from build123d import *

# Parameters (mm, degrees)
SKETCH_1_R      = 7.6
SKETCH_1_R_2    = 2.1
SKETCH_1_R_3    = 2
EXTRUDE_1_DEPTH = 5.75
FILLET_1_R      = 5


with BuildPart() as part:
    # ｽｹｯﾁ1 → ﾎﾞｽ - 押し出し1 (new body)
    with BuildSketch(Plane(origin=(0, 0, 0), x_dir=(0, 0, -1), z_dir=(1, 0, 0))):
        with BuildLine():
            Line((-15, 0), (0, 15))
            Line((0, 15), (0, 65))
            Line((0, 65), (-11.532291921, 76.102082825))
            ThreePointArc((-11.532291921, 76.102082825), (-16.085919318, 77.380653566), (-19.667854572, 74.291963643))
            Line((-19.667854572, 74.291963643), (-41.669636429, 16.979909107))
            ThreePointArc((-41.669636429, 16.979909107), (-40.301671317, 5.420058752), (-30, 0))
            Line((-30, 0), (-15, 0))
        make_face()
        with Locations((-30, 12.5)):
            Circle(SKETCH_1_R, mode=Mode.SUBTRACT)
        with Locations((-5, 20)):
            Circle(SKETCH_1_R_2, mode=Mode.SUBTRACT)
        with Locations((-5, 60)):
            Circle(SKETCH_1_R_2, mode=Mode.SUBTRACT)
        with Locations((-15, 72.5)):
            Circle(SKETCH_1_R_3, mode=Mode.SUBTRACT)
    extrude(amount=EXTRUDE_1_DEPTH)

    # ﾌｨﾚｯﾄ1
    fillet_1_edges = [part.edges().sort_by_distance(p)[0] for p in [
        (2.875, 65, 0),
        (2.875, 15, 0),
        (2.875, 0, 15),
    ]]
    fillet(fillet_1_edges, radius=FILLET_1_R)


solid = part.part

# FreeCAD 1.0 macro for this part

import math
import FreeCAD as App
import Part
import Sketcher
from FreeCAD import Vector
Q = App.Units.Quantity


def edges_at(feature, points):
    """Names of the edges that pass closest to the given points."""
    edges = feature.Shape.Edges
    near = lambda p: min(range(len(edges)), key=lambda i: edges[i].distToShape(Part.Vertex(*p))[0])
    return sorted({f"Edge{near(p) + 1}" for p in points})

doc = App.newDocument("Part")
body = doc.addObject("PartDesign::Body", "Body")

sketch1 = body.newObject("Sketcher::SketchObject", "Sketch")
sketch1.AttachmentSupport = (doc.getObject("YZ_Plane"), [""])
sketch1.MapMode = "FlatFace"
sketch1.addGeometry(Part.LineSegment(Vector(0, 15, 0), Vector(15, 0, 0)), False)
sketch1.addGeometry(Part.LineSegment(Vector(15, 0, 0), Vector(65, 0, 0)), False)
sketch1.addGeometry(Part.LineSegment(Vector(65, 0, 0), Vector(76.102083, 11.532292, 0)), False)
sketch1.addGeometry(Part.ArcOfCircle(Part.Circle(Vector(72.5, 15, 0), Vector(0, 0, 1), 5), math.radians(-43.911116), math.radians(68.998479)), False)
sketch1.addGeometry(Part.LineSegment(Vector(74.291964, 19.667855, 0), Vector(16.979909, 41.669636, 0)), False)
sketch1.addGeometry(Part.ArcOfCircle(Part.Circle(Vector(12.5, 30, 0), Vector(0, 0, 1), 12.5), math.radians(68.998479), math.radians(180)), False)
sketch1.addGeometry(Part.LineSegment(Vector(0, 30, 0), Vector(0, 15, 0)), False)
sketch1.addGeometry(Part.Circle(Vector(12.5, 30, 0), Vector(0, 0, 1), 7.6), False)
sketch1.addGeometry(Part.Circle(Vector(20, 5, 0), Vector(0, 0, 1), 2.1), False)
sketch1.addGeometry(Part.Circle(Vector(72.5, 15, 0), Vector(0, 0, 1), 2), False)
sketch1.addGeometry(Part.Circle(Vector(60, 5, 0), Vector(0, 0, 1), 2.1), False)
sketch1.addConstraint(Sketcher.Constraint("Coincident", 0, 2, 1, 1))
sketch1.addConstraint(Sketcher.Constraint("Coincident", 1, 2, 2, 1))
sketch1.addConstraint(Sketcher.Constraint("Tangent", 2, 2, 3, 1))
sketch1.addConstraint(Sketcher.Constraint("Tangent", 3, 2, 4, 1))
sketch1.addConstraint(Sketcher.Constraint("Tangent", 4, 2, 5, 1))
sketch1.addConstraint(Sketcher.Constraint("Tangent", 5, 2, 6, 1))
sketch1.addConstraint(Sketcher.Constraint("Coincident", 6, 2, 0, 1))
sketch1.addConstraint(Sketcher.Constraint("Horizontal", 1))
sketch1.addConstraint(Sketcher.Constraint("Vertical", 6))
sketch1.addConstraint(Sketcher.Constraint("Coincident", 7, 3, 5, 3))
sketch1.addConstraint(Sketcher.Constraint("Coincident", 9, 3, 3, 3))
sketch1.addConstraint(Sketcher.Constraint("Equal", 8, 10))
sketch1.addConstraint(Sketcher.Constraint("PointOnObject", 0, 2, -1))
sketch1.addConstraint(Sketcher.Constraint("PointOnObject", 5, 2, -2))
sketch1.addConstraint(Sketcher.Constraint("Horizontal", 8, 3, 10, 3))
sketch1.addConstraint(Sketcher.Constraint("Horizontal", 9, 3, 6, 2))
sketch1.addConstraint(Sketcher.Constraint("Diameter", 9, Q("4 mm")))
sketch1.addConstraint(Sketcher.Constraint("Radius", 3, Q("5 mm")))
sketch1.addConstraint(Sketcher.Constraint("Diameter", 7, Q("15.2 mm")))
sketch1.addConstraint(Sketcher.Constraint("Diameter", 8, Q("4.2 mm")))
sketch1.addConstraint(Sketcher.Constraint("Radius", 5, Q("12.5 mm")))
sketch1.addConstraint(Sketcher.Constraint("DistanceX", 1, 1, 1, 2, Q("50 mm")))
sketch1.addConstraint(Sketcher.Constraint("DistanceY", 6, 2, 6, 1, Q("15 mm")))
sketch1.addConstraint(Sketcher.Constraint("Angle", 0, Q("-45 deg")))
sketch1.addConstraint(Sketcher.Constraint("DistanceY", -1, 1, 3, 3, Q("15 mm")))
sketch1.addConstraint(Sketcher.Constraint("DistanceX", -1, 1, 8, 3, Q("20 mm")))
sketch1.addConstraint(Sketcher.Constraint("DistanceY", -1, 1, 8, 3, Q("5 mm")))
sketch1.addConstraint(Sketcher.Constraint("DistanceX", -1, 1, 10, 3, Q("60 mm")))
sketch1.addConstraint(Sketcher.Constraint("DistanceX", 5, 3, 3, 3, Q("60 mm")))
pad1 = body.newObject("PartDesign::Pad", "Pad")
pad1.Profile = sketch1
pad1.Length = 5.75
doc.recompute()

fillet = body.newObject("PartDesign::Fillet", "Fillet")
fillet.Base = (pad1, edges_at(pad1, [(2.875, 65, 0), (2.875, 15, 0), (2.875, 0, 15)]))
fillet.Radius = 5

doc.recompute()
